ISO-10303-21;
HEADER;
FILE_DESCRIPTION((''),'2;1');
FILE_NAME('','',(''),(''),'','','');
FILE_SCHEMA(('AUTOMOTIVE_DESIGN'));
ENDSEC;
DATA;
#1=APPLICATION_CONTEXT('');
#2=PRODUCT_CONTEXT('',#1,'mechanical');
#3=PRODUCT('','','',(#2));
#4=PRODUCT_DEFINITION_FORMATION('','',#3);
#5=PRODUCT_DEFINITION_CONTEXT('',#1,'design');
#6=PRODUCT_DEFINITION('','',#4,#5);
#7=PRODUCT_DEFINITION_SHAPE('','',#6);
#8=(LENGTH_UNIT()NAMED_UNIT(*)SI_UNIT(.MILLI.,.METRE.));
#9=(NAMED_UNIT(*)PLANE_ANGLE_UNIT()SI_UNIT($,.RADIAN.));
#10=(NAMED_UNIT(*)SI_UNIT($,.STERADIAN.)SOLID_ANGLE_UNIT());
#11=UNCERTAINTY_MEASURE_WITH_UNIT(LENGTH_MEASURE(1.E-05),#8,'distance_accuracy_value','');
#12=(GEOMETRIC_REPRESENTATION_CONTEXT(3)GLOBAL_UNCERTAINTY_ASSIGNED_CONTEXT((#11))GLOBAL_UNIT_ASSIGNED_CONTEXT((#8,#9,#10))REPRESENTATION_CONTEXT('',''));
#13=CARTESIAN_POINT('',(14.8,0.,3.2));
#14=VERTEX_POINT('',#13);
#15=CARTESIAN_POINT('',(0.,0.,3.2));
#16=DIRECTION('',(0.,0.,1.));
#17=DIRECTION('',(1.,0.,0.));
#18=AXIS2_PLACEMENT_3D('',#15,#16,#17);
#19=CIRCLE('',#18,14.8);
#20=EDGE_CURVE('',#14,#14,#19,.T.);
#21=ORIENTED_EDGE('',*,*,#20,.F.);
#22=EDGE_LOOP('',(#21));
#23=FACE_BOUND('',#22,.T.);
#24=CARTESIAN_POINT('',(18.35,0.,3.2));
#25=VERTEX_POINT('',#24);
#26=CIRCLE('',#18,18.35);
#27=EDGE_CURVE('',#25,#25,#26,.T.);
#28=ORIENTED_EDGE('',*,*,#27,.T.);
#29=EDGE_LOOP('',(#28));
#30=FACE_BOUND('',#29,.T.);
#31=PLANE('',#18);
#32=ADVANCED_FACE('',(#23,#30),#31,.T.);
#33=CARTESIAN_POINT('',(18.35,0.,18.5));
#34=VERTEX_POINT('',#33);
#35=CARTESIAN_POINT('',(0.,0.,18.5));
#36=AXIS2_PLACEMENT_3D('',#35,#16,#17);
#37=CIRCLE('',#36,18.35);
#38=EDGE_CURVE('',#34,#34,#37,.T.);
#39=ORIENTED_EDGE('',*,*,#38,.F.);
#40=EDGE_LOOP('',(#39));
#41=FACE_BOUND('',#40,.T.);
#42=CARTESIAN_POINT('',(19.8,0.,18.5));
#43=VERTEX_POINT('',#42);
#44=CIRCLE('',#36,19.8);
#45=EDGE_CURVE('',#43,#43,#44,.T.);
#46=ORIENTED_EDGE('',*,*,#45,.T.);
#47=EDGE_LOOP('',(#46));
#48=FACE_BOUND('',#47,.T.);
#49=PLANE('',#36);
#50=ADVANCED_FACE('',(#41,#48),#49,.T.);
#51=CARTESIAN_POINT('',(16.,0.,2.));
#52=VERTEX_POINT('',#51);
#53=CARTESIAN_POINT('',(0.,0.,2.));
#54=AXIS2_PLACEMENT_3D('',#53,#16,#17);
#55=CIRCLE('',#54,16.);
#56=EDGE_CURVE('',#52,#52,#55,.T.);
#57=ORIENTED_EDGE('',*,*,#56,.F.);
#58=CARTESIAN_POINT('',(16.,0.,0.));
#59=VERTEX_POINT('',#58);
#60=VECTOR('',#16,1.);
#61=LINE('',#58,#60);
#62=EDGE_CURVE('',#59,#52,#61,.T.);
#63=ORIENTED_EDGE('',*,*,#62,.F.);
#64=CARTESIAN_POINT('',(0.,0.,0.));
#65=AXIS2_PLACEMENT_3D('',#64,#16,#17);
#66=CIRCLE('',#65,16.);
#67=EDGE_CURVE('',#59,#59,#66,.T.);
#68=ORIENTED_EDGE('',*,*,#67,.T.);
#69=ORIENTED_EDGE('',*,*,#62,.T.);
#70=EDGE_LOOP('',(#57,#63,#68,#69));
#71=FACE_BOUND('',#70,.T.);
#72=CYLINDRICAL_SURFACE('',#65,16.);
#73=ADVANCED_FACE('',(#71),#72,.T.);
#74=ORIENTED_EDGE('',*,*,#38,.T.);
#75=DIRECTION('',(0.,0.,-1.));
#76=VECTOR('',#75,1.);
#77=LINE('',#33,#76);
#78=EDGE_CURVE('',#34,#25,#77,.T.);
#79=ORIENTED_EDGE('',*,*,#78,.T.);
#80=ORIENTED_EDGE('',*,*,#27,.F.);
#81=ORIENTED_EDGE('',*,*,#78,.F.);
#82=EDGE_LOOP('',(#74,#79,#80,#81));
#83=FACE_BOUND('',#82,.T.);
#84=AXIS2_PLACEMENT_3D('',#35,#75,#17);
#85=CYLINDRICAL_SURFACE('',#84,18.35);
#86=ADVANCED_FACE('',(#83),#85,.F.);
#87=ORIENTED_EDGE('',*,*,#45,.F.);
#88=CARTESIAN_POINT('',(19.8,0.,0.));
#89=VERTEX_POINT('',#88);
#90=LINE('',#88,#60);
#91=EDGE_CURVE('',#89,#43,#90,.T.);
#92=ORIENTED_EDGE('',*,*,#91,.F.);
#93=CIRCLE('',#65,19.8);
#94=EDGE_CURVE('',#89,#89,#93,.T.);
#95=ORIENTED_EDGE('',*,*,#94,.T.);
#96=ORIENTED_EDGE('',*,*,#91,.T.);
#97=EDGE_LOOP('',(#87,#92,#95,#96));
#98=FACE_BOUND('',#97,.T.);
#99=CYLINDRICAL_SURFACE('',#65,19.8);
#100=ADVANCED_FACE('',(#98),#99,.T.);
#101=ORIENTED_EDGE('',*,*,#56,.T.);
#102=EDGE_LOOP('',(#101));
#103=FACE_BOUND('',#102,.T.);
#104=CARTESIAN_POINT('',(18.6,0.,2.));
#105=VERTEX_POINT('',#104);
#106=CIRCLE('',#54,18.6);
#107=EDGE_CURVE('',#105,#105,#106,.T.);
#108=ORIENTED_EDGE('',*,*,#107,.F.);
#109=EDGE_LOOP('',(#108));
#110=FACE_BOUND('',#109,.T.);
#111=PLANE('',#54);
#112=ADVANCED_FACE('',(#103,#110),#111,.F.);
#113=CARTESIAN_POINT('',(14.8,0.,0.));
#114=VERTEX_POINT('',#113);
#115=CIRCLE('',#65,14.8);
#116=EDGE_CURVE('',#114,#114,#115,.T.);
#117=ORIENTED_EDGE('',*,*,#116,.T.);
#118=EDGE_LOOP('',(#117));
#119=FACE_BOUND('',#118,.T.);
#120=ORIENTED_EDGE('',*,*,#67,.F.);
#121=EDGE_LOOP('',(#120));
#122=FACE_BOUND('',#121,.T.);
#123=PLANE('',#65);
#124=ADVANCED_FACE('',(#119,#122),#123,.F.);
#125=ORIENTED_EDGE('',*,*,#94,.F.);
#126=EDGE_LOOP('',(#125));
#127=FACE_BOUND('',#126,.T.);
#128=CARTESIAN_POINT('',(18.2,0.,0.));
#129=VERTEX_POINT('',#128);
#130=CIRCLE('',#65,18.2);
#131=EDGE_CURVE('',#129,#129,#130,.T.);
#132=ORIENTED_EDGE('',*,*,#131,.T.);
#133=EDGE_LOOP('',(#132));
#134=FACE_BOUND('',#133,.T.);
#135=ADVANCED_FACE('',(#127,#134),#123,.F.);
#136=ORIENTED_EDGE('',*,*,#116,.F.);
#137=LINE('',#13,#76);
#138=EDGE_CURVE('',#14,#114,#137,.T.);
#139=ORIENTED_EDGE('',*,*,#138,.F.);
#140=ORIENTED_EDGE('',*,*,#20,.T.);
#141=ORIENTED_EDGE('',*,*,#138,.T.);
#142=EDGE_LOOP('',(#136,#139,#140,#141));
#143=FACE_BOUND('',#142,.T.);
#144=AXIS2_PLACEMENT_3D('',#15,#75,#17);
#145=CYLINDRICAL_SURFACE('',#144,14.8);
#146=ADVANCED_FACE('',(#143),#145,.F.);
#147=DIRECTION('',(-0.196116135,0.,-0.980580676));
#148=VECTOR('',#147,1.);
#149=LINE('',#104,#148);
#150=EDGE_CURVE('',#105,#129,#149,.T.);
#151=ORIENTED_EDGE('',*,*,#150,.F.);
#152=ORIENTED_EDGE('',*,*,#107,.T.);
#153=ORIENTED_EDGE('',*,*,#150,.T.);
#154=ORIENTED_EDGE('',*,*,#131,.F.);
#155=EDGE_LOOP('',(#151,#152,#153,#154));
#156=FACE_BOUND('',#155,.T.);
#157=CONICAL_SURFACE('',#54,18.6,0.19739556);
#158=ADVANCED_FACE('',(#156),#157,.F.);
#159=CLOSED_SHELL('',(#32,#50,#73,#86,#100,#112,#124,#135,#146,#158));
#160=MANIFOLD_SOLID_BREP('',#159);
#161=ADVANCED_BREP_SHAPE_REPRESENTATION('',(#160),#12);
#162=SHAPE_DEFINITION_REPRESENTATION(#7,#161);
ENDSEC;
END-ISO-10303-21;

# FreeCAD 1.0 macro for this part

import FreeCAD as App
import Part
import Sketcher
from FreeCAD import Vector


def add_polygon(sketch, points):
    """Adds a closed chain of lines whose ends are joined by coincident constraints."""
    first, n = sketch.GeometryCount, len(points)
    for a, b in zip(points, points[1:] + points[:1]):
        sketch.addGeometry(Part.LineSegment(App.Vector(*a, 0), App.Vector(*b, 0)), False)
    for i in range(n):
        sketch.addConstraint(Sketcher.Constraint("Coincident", first + i, 2, first + (i + 1) % n, 1))

doc = App.newDocument("Part")
body = doc.addObject("PartDesign::Body", "Body")

sketch1 = body.newObject("Sketcher::SketchObject", "Sketch")
sketch1.AttachmentSupport = (doc.getObject("XZ_Plane"), [""])
sketch1.MapMode = "FlatFace"
add_polygon(sketch1, [(16, 0), (16, 2), (18.6, 2), (18.2, 0), (19.8, 0), (19.8, 18.5), (18.4, 18.5), (18.4, 3.2), (14.8, 3.2), (14.8, 0)])
sketch1.addConstraint([
    Sketcher.Constraint("Vertical", 0),
    Sketcher.Constraint("Horizontal", 1),
    Sketcher.Constraint("Horizontal", 3),
    Sketcher.Constraint("Vertical", 4),
    Sketcher.Constraint("Horizontal", 5),
    Sketcher.Constraint("Vertical", 6),
    Sketcher.Constraint("Horizontal", 7),
    Sketcher.Constraint("Vertical", 8),
    Sketcher.Constraint("Horizontal", 9),
    Sketcher.Constraint("PointOnObject", 2, 2, -1),
    Sketcher.Constraint("PointOnObject", 8, 2, -1),
    Sketcher.Constraint("DistanceY", 0, 1, 0, 2, 2.0),
    Sketcher.Constraint("DistanceX", 1, 1, 1, 2, 2.6),
    Sketcher.Constraint("DistanceX", 3, 1, 3, 2, 1.6),
    Sketcher.Constraint("DistanceX", 9, 1, 9, 2, 1.2),
    Sketcher.Constraint("DistanceY", 4, 1, 4, 2, 18.5),
    Sketcher.Constraint("DistanceY", 6, 2, 6, 1, 15.3),
    Sketcher.Constraint("DistanceX", -1, 1, 0, 2, 16.0),
    Sketcher.Constraint("DistanceX", 7, 2, 3, 2, 5.0),
    Sketcher.Constraint("DistanceX", 5, 2, 5, 1, 1.45),
])
revolution = body.newObject("PartDesign::Revolution", "Revolution")
revolution.Profile = sketch1
revolution.ReferenceAxis = (sketch1, ["V_Axis"])
revolution.Angle = 360

doc.recompute()
